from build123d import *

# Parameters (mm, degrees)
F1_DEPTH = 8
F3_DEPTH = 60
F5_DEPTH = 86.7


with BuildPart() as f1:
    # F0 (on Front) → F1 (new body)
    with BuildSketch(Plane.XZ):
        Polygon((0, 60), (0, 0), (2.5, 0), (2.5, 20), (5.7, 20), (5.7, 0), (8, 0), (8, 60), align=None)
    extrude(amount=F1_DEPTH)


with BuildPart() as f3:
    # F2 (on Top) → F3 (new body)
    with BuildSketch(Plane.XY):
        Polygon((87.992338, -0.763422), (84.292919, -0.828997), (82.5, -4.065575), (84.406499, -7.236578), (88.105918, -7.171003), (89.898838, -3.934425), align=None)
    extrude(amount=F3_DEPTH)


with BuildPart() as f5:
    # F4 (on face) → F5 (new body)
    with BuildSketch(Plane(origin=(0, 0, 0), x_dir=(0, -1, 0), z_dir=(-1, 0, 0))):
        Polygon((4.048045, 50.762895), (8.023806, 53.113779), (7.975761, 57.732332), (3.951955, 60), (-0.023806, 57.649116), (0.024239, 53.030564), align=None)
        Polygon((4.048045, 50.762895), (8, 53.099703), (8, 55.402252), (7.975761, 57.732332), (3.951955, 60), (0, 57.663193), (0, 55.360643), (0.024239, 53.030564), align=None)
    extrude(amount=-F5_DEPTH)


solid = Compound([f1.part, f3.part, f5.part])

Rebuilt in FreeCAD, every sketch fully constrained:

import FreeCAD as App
import Part
import Sketcher

V = App.Vector
Q = App.Units.Quantity

doc = App.newDocument("Part")
body = doc.addObject("PartDesign::Body", "Body")

sketch1 = body.newObject("Sketcher::SketchObject", "Sketch")
sketch1.AttachmentSupport = (doc.getObject("XZ_Plane"), [""])
sketch1.MapMode = "FlatFace"
sketch1.addGeometry([
    Part.LineSegment(V(0, 60, 0), V(0, 0, 0)),
    Part.LineSegment(V(0, 0, 0), V(2.5, 0, 0)),
    Part.LineSegment(V(2.5, 0, 0), V(2.5, 20, 0)),
    Part.LineSegment(V(2.5, 20, 0), V(5.7, 20, 0)),
    Part.LineSegment(V(5.7, 20, 0), V(5.7, 0, 0)),
    Part.LineSegment(V(5.7, 0, 0), V(8, 0, 0)),
    Part.LineSegment(V(8, 0, 0), V(8, 60, 0)),
    Part.LineSegment(V(8, 60, 0), V(0, 60, 0)),
], False)
sketch1.addConstraint([
    Sketcher.Constraint("Coincident", 0, 2, 1, 1),
    Sketcher.Constraint("Coincident", 1, 2, 2, 1),
    Sketcher.Constraint("Coincident", 2, 2, 3, 1),
    Sketcher.Constraint("Coincident", 3, 2, 4, 1),
    Sketcher.Constraint("Coincident", 4, 2, 5, 1),
    Sketcher.Constraint("Coincident", 5, 2, 6, 1),
    Sketcher.Constraint("Coincident", 6, 2, 7, 1),
    Sketcher.Constraint("Coincident", 7, 2, 0, 1),
    Sketcher.Constraint("Vertical", 0),
    Sketcher.Constraint("Horizontal", 1),
    Sketcher.Constraint("Vertical", 2),
    Sketcher.Constraint("Horizontal", 3),
    Sketcher.Constraint("Vertical", 4),
    Sketcher.Constraint("Horizontal", 5),
    Sketcher.Constraint("Vertical", 6),
    Sketcher.Constraint("Horizontal", 7),
    Sketcher.Constraint("Coincident", 0, 2, -1, 1),
    Sketcher.Constraint("PointOnObject", 4, 2, -1),
    Sketcher.Constraint("DistanceX", 7, 2, 7, 1, Q("8 mm")),
    Sketcher.Constraint("DistanceY", 0, 2, 0, 1, Q("60 mm")),
    Sketcher.Constraint("DistanceY", 2, 1, 2, 2, Q("20 mm")),
    Sketcher.Constraint("DistanceX", 1, 1, 1, 2, Q("2.5 mm")),
    Sketcher.Constraint("DistanceX", 3, 1, 3, 2, Q("3.2 mm")),
])
pad1 = body.newObject("PartDesign::Pad", "Pad")
pad1.Profile = sketch1
pad1.Length = 8
body2 = doc.addObject("PartDesign::Body", "Body001")

sketch2 = body2.newObject("Sketcher::SketchObject", "Sketch001")
sketch2.AttachmentSupport = (doc.getObject("XY_Plane001"), [""])
sketch2.MapMode = "FlatFace"
sketch2.addGeometry([
    Part.LineSegment(V(87.992338, -0.763422, 0), V(84.292919, -0.828997, 0)),
    Part.LineSegment(V(84.292919, -0.828997, 0), V(82.5, -4.065575, 0)),
    Part.LineSegment(V(82.5, -4.065575, 0), V(84.406499, -7.236578, 0)),
    Part.LineSegment(V(84.406499, -7.236578, 0), V(88.105918, -7.171003, 0)),
    Part.LineSegment(V(88.105918, -7.171003, 0), V(89.898838, -3.934425, 0)),
    Part.LineSegment(V(89.898838, -3.934425, 0), V(87.992338, -0.763422, 0)),
], False)
sketch2.addConstraint([
    Sketcher.Constraint("Coincident", 0, 2, 1, 1),
    Sketcher.Constraint("Coincident", 1, 2, 2, 1),
    Sketcher.Constraint("Coincident", 2, 2, 3, 1),
    Sketcher.Constraint("Coincident", 3, 2, 4, 1),
    Sketcher.Constraint("Coincident", 4, 2, 5, 1),
    Sketcher.Constraint("Coincident", 5, 2, 0, 1),
    Sketcher.Constraint("Parallel", 0, 3),
    Sketcher.Constraint("Parallel", 1, 4),
    Sketcher.Constraint("Parallel", 2, 5),
    Sketcher.Constraint("Equal", 0, 1),
    Sketcher.Constraint("Equal", 1, 2),
    Sketcher.Constraint("Equal", 2, 3),
    Sketcher.Constraint("Distance", 0, Q("3.7 mm")),
    Sketcher.Constraint("DistanceX", -1, 1, 1, 2, Q("82.5 mm")),
    Sketcher.Constraint("DistanceX", 0, 2, 3, 2, Q("3.812999 mm")),
    Sketcher.Constraint("DistanceX", -1, 1, 2, 2, Q("84.406499 mm")),
    Sketcher.Constraint("DistanceX", -1, 1, 0, 2, Q("84.292919 mm")),
    Sketcher.Constraint("DistanceY", 0, 2, -1, 1, Q("0.828997 mm")),
])
pad2 = body2.newObject("PartDesign::Pad", "Pad001")
pad2.Profile = sketch2
pad2.Length = 60
body3 = doc.addObject("PartDesign::Body", "Body002")

sketch3 = body3.newObject("Sketcher::SketchObject", "Sketch002")
sketch3.AttachmentSupport = (doc.getObject("YZ_Plane002"), [""])
sketch3.MapMode = "FlatFace"
sketch3.addGeometry([
    Part.LineSegment(V(-8, 53.1, 0), V(-8, 57.7, 0)),
    Part.LineSegment(V(-8, 57.7, 0), V(-4, 60, 0)),
    Part.LineSegment(V(-4, 60, 0), V(0, 57.6, 0)),
    Part.LineSegment(V(0, 57.6, 0), V(0, 53, 0)),
    Part.LineSegment(V(0, 53, 0), V(-4, 50.8, 0)),
    Part.LineSegment(V(-4, 50.8, 0), V(-8, 53.1, 0)),
], False)
sketch3.addConstraint([
    Sketcher.Constraint("Coincident", 0, 2, 1, 1),
    Sketcher.Constraint("Coincident", 1, 2, 2, 1),
    Sketcher.Constraint("Coincident", 2, 2, 3, 1),
    Sketcher.Constraint("Coincident", 3, 2, 4, 1),
    Sketcher.Constraint("Coincident", 4, 2, 5, 1),
    Sketcher.Constraint("Coincident", 5, 2, 0, 1),
    Sketcher.Constraint("Parallel", 0, 3),
    Sketcher.Constraint("Parallel", 1, 4),
    Sketcher.Constraint("Parallel", 2, 5),
    Sketcher.Constraint("Equal", 0, 1),
    Sketcher.Constraint("Equal", 1, 2),
    Sketcher.Constraint("Equal", 2, 3),
    Sketcher.Constraint("DistanceY", -1, 1, 1, 2, Q("60 mm")),
    Sketcher.Constraint("Distance", 2, Q("4.618802 mm")),
    Sketcher.Constraint("DistanceX", 0, 2, -1, 1, Q("7.975761 mm")),
    Sketcher.Constraint("DistanceX", 3, 2, -1, 1, Q("0.024239 mm")),
    Sketcher.Constraint("DistanceY", -1, 1, 5, 2, Q("53.113779 mm")),
    Sketcher.Constraint("DistanceX", 1, 2, 2, 2, Q("3.975761 mm")),
])
pad3 = body3.newObject("PartDesign::Pad", "Pad002")
pad3.Profile = sketch3
pad3.Length = 86.7

doc.recompute()
